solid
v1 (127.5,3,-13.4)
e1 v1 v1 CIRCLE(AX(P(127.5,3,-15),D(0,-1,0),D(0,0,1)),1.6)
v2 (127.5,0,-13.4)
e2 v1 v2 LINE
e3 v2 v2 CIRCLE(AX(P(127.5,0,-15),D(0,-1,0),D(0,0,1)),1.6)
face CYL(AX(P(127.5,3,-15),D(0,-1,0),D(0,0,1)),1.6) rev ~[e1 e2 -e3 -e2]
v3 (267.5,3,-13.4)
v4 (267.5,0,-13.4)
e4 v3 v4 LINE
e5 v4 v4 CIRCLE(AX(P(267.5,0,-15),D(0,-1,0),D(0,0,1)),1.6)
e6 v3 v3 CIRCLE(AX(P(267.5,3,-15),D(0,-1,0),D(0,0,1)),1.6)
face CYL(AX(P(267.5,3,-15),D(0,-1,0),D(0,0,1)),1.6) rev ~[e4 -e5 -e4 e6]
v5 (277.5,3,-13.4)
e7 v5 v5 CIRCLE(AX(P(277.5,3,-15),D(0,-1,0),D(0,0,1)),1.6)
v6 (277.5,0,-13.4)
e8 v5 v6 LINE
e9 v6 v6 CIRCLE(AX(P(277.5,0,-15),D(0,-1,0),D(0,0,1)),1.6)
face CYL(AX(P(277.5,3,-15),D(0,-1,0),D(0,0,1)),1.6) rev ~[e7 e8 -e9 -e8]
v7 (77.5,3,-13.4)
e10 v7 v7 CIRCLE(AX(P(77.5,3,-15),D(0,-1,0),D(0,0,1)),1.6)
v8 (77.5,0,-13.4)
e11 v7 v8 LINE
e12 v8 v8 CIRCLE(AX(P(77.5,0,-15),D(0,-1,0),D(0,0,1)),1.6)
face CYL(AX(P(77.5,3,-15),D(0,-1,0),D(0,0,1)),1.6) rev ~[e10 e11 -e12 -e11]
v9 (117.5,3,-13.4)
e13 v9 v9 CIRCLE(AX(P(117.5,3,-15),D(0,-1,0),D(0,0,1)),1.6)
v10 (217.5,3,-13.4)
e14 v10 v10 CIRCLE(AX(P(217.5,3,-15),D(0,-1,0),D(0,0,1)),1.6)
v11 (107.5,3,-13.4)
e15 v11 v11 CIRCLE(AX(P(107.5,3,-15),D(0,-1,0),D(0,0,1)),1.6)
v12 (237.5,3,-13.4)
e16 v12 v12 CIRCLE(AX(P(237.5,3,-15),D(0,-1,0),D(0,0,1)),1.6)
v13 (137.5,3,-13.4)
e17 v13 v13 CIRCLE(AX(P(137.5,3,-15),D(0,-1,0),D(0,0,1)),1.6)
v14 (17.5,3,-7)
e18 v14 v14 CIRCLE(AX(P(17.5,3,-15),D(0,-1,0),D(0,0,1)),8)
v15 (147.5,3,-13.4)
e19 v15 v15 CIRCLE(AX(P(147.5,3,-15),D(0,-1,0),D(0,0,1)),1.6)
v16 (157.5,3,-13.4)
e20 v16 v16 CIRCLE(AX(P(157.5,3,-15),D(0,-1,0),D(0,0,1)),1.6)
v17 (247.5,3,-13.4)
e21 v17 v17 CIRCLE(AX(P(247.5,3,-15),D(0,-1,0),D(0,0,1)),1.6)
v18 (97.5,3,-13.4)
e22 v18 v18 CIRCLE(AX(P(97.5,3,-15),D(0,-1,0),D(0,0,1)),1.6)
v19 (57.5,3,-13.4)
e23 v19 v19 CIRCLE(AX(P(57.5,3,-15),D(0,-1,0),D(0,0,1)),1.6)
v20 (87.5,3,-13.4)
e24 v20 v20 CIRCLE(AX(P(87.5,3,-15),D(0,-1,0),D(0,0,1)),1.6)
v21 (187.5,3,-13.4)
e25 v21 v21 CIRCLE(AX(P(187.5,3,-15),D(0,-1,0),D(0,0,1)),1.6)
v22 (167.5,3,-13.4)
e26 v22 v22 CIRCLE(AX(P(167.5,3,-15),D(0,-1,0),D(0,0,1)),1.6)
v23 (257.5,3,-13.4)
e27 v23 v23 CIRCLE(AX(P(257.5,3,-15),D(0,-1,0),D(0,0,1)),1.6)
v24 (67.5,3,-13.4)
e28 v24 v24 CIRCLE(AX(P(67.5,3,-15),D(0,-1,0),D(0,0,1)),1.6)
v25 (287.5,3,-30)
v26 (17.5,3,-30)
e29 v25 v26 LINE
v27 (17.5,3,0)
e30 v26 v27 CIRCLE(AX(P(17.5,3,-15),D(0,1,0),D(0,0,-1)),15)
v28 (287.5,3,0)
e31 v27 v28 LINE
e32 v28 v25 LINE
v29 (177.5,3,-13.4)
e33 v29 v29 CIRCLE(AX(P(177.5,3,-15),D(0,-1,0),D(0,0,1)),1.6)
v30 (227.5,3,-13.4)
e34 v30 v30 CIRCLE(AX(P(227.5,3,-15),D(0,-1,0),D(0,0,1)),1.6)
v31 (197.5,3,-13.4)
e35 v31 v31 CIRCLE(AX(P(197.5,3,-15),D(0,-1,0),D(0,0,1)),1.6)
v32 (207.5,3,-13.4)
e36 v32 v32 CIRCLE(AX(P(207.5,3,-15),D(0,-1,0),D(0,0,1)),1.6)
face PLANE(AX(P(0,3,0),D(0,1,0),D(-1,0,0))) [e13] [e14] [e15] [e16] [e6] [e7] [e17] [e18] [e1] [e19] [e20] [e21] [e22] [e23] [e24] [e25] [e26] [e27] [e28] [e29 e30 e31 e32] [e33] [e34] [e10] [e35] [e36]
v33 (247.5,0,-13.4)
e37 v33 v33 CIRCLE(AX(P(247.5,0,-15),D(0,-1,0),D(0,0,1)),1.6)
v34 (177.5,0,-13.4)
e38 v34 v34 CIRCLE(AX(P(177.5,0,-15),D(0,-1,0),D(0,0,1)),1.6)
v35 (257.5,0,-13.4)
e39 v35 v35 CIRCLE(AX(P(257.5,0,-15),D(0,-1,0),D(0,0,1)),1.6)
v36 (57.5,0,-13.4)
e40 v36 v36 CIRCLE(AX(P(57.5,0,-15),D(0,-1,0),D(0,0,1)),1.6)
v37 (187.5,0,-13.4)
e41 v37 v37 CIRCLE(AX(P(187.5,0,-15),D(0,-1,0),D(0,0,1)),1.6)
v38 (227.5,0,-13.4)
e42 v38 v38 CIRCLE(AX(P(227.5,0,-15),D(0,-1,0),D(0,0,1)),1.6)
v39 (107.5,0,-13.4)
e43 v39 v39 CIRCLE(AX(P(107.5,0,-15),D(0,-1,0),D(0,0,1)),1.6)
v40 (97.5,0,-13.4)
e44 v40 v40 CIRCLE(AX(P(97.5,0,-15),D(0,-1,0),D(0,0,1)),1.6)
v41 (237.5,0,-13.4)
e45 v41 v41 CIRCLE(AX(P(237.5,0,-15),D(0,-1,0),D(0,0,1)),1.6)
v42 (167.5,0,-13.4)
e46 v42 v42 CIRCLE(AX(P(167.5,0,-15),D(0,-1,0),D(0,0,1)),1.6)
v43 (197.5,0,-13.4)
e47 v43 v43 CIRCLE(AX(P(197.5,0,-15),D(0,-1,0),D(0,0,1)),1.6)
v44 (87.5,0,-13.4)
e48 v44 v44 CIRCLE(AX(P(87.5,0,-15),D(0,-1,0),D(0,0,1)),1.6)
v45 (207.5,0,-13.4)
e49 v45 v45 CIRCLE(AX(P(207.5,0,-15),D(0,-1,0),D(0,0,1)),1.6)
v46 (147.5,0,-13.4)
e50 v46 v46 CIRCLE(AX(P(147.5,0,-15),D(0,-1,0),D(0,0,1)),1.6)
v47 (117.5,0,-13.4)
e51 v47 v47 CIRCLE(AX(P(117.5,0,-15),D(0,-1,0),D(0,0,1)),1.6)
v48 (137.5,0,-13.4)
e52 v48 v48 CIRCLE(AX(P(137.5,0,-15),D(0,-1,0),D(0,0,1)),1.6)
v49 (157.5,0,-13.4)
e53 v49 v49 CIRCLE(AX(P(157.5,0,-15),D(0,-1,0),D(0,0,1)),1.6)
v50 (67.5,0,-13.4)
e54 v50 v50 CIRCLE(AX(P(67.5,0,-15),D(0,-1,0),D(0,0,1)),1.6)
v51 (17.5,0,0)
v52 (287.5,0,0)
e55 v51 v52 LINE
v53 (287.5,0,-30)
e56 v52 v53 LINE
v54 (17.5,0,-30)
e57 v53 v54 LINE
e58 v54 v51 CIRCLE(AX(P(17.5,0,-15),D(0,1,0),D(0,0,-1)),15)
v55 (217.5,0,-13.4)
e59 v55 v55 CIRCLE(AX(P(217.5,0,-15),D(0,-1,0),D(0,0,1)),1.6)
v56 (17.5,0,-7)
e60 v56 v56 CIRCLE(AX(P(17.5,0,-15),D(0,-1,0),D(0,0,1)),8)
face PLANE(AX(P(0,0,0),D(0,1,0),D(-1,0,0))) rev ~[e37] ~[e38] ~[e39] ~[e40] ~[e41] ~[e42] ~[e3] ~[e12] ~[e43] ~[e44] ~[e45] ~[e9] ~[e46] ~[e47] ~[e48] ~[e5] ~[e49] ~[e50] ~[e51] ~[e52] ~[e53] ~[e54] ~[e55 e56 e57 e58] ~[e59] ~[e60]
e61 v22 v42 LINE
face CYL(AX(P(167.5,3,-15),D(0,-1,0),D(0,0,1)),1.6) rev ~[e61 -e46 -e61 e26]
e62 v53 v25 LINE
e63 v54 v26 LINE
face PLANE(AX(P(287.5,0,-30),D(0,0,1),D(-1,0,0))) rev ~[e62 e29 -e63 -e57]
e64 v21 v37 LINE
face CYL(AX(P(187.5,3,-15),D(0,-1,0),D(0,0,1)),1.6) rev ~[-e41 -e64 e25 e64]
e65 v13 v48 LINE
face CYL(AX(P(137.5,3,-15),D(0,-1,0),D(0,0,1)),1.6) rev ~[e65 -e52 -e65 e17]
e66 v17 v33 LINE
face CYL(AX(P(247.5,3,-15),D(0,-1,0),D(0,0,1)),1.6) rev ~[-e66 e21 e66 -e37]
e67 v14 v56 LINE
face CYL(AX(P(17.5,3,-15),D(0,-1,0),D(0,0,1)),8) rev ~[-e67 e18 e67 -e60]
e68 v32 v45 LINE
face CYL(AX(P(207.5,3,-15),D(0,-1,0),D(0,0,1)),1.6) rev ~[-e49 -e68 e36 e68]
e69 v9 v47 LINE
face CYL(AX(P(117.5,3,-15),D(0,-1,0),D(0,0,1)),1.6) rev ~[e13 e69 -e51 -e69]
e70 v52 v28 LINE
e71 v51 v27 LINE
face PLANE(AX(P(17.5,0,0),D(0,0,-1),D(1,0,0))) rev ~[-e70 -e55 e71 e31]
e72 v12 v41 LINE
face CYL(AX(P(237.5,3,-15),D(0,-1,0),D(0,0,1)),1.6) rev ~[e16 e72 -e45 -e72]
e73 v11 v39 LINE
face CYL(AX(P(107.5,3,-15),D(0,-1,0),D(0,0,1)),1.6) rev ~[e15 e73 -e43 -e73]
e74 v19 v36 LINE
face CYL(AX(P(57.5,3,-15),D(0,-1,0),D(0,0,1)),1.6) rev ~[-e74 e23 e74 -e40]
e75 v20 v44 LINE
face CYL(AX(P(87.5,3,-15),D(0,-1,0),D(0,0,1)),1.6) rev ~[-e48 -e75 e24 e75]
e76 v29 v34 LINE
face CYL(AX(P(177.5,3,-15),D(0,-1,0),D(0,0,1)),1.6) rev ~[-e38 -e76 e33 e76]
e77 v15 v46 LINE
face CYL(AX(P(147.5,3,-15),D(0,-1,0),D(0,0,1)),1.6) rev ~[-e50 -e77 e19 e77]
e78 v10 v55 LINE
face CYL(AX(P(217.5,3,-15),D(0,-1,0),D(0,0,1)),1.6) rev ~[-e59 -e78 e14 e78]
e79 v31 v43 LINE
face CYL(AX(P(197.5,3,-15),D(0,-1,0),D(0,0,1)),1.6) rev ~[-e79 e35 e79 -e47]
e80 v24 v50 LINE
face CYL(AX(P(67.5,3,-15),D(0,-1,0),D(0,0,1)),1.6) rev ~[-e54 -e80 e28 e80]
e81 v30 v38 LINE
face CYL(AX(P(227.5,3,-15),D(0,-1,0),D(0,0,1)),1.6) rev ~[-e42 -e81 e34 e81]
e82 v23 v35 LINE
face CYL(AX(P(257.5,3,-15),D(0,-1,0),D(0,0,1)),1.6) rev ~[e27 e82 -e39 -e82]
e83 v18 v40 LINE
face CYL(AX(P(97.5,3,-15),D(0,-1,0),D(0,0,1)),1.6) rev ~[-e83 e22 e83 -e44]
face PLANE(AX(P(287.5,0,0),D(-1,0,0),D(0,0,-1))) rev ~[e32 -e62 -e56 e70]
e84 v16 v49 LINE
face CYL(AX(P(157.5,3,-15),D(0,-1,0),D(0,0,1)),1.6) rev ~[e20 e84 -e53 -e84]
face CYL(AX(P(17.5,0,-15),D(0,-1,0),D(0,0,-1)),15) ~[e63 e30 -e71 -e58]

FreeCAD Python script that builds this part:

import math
import FreeCAD as App
import Part
import Sketcher
Q = App.Units.Quantity

doc = App.newDocument("Part")
body = doc.addObject("PartDesign::Body", "Body")

# Sketch on XZ plane
sketch1 = body.newObject("Sketcher::SketchObject", "Sketch")
sketch1.AttachmentSupport = (doc.getObject("XZ_Plane"), [""])
sketch1.MapMode = "FlatFace"
sketch1.addGeometry([
    Part.ArcOfCircle(Part.Circle(App.Vector(18, -15, 0), App.Vector(0, 0, 1), 15), math.radians(90), math.radians(270)),
    Part.LineSegment(App.Vector(18, 0, 0), App.Vector(288, 0, 0)),
    Part.LineSegment(App.Vector(288, 0, 0), App.Vector(288, -30, 0)),
    Part.LineSegment(App.Vector(288, -30, 0), App.Vector(18, -30, 0)),
], False)
sketch1.addConstraint([
    Sketcher.Constraint("Tangent", 0, 1, 1, 1),
    Sketcher.Constraint("Coincident", 1, 2, 2, 1),
    Sketcher.Constraint("Coincident", 2, 2, 3, 1),
    Sketcher.Constraint("Tangent", 3, 2, 0, 2),
    Sketcher.Constraint("Horizontal", 1),
    Sketcher.Constraint("Vertical", 2),
    Sketcher.Constraint("Horizontal", 3),
    Sketcher.Constraint("PointOnObject", 0, 1, -1),
    Sketcher.Constraint("Radius", 0, Q("15 mm")),
    Sketcher.Constraint("DistanceX", -1, 1, 0, 3, Q("17.5 mm")),
    Sketcher.Constraint("DistanceX", -1, 1, 1, 2, Q("287.5 mm")),
])
pad1 = body.newObject("PartDesign::Pad", "Pad")
pad1.Profile = sketch1
pad1.Length = 3
pad1.Reversed = True

# Sketch on XZ plane
sketch2 = body.newObject("Sketcher::SketchObject", "Sketch001")
sketch2.AttachmentSupport = (doc.getObject("XZ_Plane"), [""])
sketch2.MapMode = "FlatFace"
sketch2.AttachmentOffset = App.Placement(App.Vector(0, 0, -3), App.Rotation())
sketch2.addGeometry(Part.Circle(App.Vector(18, -15, 0), App.Vector(0, 0, 1), 8), False)
sketch2.addConstraint([
    Sketcher.Constraint("Diameter", 0, Q("16 mm")),
    Sketcher.Constraint("DistanceY", 0, 3, -1, 1, Q("15 mm")),
    Sketcher.Constraint("DistanceX", -1, 1, 0, 3, Q("17.5 mm")),
])
doc.recompute()
hole = body.newObject("PartDesign::Hole", "Hole")
hole.Profile = sketch2
hole.ThreadType = "None"
hole.Diameter = 16
hole.DepthType = "ThroughAll"
hole.Reversed = True

# Sketch on XZ plane
sketch3 = body.newObject("Sketcher::SketchObject", "Sketch002")
sketch3.AttachmentSupport = (doc.getObject("XZ_Plane"), [""])
sketch3.MapMode = "FlatFace"
sketch3.AttachmentOffset = App.Placement(App.Vector(0, 0, -3), App.Rotation())
sketch3.addGeometry([
    Part.Circle(App.Vector(57.5, -15, 0), App.Vector(0, 0, 1), 1.6),  # 0
    Part.Circle(App.Vector(67.5, -15, 0), App.Vector(0, 0, 1), 1.6),  # 1
    Part.Circle(App.Vector(77.5, -15, 0), App.Vector(0, 0, 1), 1.6),  # 2
    Part.Circle(App.Vector(87.5, -15, 0), App.Vector(0, 0, 1), 1.6),  # 3
    Part.Circle(App.Vector(97.5, -15, 0), App.Vector(0, 0, 1), 1.6),  # 4
    Part.Circle(App.Vector(107.5, -15, 0), App.Vector(0, 0, 1), 1.6),  # 5
    Part.Circle(App.Vector(117.5, -15, 0), App.Vector(0, 0, 1), 1.6),  # 6
    Part.Circle(App.Vector(127.5, -15, 0), App.Vector(0, 0, 1), 1.6),  # 7
    Part.Circle(App.Vector(137.5, -15, 0), App.Vector(0, 0, 1), 1.6),  # 8
    Part.Circle(App.Vector(147.5, -15, 0), App.Vector(0, 0, 1), 1.6),  # 9
    Part.Circle(App.Vector(157.5, -15, 0), App.Vector(0, 0, 1), 1.6),  # 10
    Part.Circle(App.Vector(167.5, -15, 0), App.Vector(0, 0, 1), 1.6),  # 11
    Part.Circle(App.Vector(177.5, -15, 0), App.Vector(0, 0, 1), 1.6),  # 12
    Part.Circle(App.Vector(187.5, -15, 0), App.Vector(0, 0, 1), 1.6),  # 13
    Part.Circle(App.Vector(197.5, -15, 0), App.Vector(0, 0, 1), 1.6),  # 14
    Part.Circle(App.Vector(207.5, -15, 0), App.Vector(0, 0, 1), 1.6),  # 15
    Part.Circle(App.Vector(217.5, -15, 0), App.Vector(0, 0, 1), 1.6),  # 16
    Part.Circle(App.Vector(227.5, -15, 0), App.Vector(0, 0, 1), 1.6),  # 17
    Part.Circle(App.Vector(237.5, -15, 0), App.Vector(0, 0, 1), 1.6),  # 18
    Part.Circle(App.Vector(247.5, -15, 0), App.Vector(0, 0, 1), 1.6),  # 19
    Part.Circle(App.Vector(257.5, -15, 0), App.Vector(0, 0, 1), 1.6),  # 20
    Part.Circle(App.Vector(267.5, -15, 0), App.Vector(0, 0, 1), 1.6),  # 21
    Part.Circle(App.Vector(277.5, -15, 0), App.Vector(0, 0, 1), 1.6),  # 22
], False)
sketch3.addConstraint([
    Sketcher.Constraint("Equal", 0, 1),
    Sketcher.Constraint("Equal", 1, 2),
    Sketcher.Constraint("Equal", 2, 3),
    Sketcher.Constraint("Equal", 3, 4),
    Sketcher.Constraint("Equal", 4, 5),
    Sketcher.Constraint("Equal", 5, 6),
    Sketcher.Constraint("Equal", 6, 7),
    Sketcher.Constraint("Equal", 7, 8),
    Sketcher.Constraint("Equal", 8, 9),
    Sketcher.Constraint("Equal", 9, 10),
    Sketcher.Constraint("Equal", 10, 11),
    Sketcher.Constraint("Equal", 11, 12),
    Sketcher.Constraint("Equal", 12, 13),
    Sketcher.Constraint("Equal", 13, 14),
    Sketcher.Constraint("Equal", 14, 15),
    Sketcher.Constraint("Equal", 15, 16),
    Sketcher.Constraint("Equal", 16, 17),
    Sketcher.Constraint("Equal", 17, 18),
    Sketcher.Constraint("Equal", 18, 19),
    Sketcher.Constraint("Equal", 19, 20),
    Sketcher.Constraint("Equal", 20, 21),
    Sketcher.Constraint("Equal", 21, 22),
    Sketcher.Constraint("Horizontal", 0, 3, 1, 3),
    Sketcher.Constraint("Horizontal", 1, 3, 2, 3),
    Sketcher.Constraint("Horizontal", 2, 3, 3, 3),
    Sketcher.Constraint("Horizontal", 3, 3, 4, 3),
    Sketcher.Constraint("Horizontal", 4, 3, 5, 3),
    Sketcher.Constraint("Horizontal", 5, 3, 6, 3),
    Sketcher.Constraint("Horizontal", 6, 3, 7, 3),
    Sketcher.Constraint("Horizontal", 7, 3, 8, 3),
    Sketcher.Constraint("Horizontal", 8, 3, 9, 3),
    Sketcher.Constraint("Horizontal", 9, 3, 10, 3),
    Sketcher.Constraint("Horizontal", 10, 3, 11, 3),
    Sketcher.Constraint("Horizontal", 11, 3, 12, 3),
    Sketcher.Constraint("Horizontal", 12, 3, 13, 3),
    Sketcher.Constraint("Horizontal", 13, 3, 14, 3),
    Sketcher.Constraint("Horizontal", 14, 3, 15, 3),
    Sketcher.Constraint("Horizontal", 15, 3, 16, 3),
    Sketcher.Constraint("Horizontal", 16, 3, 17, 3),
    Sketcher.Constraint("Horizontal", 17, 3, 18, 3),
    Sketcher.Constraint("Horizontal", 18, 3, 19, 3),
    Sketcher.Constraint("Horizontal", 19, 3, 20, 3),
    Sketcher.Constraint("Horizontal", 20, 3, 21, 3),
    Sketcher.Constraint("Horizontal", 21, 3, 22, 3),
    Sketcher.Constraint("Diameter", 0, Q("3.2 mm")),
    Sketcher.Constraint("DistanceY", 0, 3, -1, 1, Q("15 mm")),
    Sketcher.Constraint("DistanceX", 0, 3, 1, 3, Q("10 mm")),
    Sketcher.Constraint("DistanceX", 1, 3, 2, 3, Q("10 mm")),
    Sketcher.Constraint("DistanceX", 2, 3, 3, 3, Q("10 mm")),
    Sketcher.Constraint("DistanceX", 3, 3, 4, 3, Q("10 mm")),
    Sketcher.Constraint("DistanceX", 4, 3, 5, 3, Q("10 mm")),
    Sketcher.Constraint("DistanceX", 5, 3, 6, 3, Q("10 mm")),
    Sketcher.Constraint("DistanceX", 6, 3, 7, 3, Q("10 mm")),
    Sketcher.Constraint("DistanceX", 7, 3, 8, 3, Q("10 mm")),
    Sketcher.Constraint("DistanceX", 8, 3, 9, 3, Q("10 mm")),
    Sketcher.Constraint("DistanceX", 9, 3, 10, 3, Q("10 mm")),
    Sketcher.Constraint("DistanceX", 10, 3, 11, 3, Q("10 mm")),
    Sketcher.Constraint("DistanceX", 11, 3, 12, 3, Q("10 mm")),
    Sketcher.Constraint("DistanceX", 12, 3, 13, 3, Q("10 mm")),
    Sketcher.Constraint("DistanceX", 13, 3, 14, 3, Q("10 mm")),
    Sketcher.Constraint("DistanceX", 14, 3, 15, 3, Q("10 mm")),
    Sketcher.Constraint("DistanceX", 15, 3, 16, 3, Q("10 mm")),
    Sketcher.Constraint("DistanceX", 16, 3, 17, 3, Q("10 mm")),
    Sketcher.Constraint("DistanceX", 17, 3, 18, 3, Q("10 mm")),
    Sketcher.Constraint("DistanceX", 18, 3, 19, 3, Q("10 mm")),
    Sketcher.Constraint("DistanceX", 19, 3, 20, 3, Q("10 mm")),
    Sketcher.Constraint("DistanceX", 20, 3, 21, 3, Q("10 mm")),
    Sketcher.Constraint("DistanceX", 21, 3, 22, 3, Q("10 mm")),
    Sketcher.Constraint("DistanceX", -1, 1, 0, 3, Q("57.5 mm")),
])
doc.recompute()
hole2 = body.newObject("PartDesign::Hole", "Hole001")
hole2.Profile = sketch3
hole2.ThreadType = "None"
hole2.Diameter = 3.2
hole2.DepthType = "ThroughAll"
hole2.Reversed = True

doc.recompute()
